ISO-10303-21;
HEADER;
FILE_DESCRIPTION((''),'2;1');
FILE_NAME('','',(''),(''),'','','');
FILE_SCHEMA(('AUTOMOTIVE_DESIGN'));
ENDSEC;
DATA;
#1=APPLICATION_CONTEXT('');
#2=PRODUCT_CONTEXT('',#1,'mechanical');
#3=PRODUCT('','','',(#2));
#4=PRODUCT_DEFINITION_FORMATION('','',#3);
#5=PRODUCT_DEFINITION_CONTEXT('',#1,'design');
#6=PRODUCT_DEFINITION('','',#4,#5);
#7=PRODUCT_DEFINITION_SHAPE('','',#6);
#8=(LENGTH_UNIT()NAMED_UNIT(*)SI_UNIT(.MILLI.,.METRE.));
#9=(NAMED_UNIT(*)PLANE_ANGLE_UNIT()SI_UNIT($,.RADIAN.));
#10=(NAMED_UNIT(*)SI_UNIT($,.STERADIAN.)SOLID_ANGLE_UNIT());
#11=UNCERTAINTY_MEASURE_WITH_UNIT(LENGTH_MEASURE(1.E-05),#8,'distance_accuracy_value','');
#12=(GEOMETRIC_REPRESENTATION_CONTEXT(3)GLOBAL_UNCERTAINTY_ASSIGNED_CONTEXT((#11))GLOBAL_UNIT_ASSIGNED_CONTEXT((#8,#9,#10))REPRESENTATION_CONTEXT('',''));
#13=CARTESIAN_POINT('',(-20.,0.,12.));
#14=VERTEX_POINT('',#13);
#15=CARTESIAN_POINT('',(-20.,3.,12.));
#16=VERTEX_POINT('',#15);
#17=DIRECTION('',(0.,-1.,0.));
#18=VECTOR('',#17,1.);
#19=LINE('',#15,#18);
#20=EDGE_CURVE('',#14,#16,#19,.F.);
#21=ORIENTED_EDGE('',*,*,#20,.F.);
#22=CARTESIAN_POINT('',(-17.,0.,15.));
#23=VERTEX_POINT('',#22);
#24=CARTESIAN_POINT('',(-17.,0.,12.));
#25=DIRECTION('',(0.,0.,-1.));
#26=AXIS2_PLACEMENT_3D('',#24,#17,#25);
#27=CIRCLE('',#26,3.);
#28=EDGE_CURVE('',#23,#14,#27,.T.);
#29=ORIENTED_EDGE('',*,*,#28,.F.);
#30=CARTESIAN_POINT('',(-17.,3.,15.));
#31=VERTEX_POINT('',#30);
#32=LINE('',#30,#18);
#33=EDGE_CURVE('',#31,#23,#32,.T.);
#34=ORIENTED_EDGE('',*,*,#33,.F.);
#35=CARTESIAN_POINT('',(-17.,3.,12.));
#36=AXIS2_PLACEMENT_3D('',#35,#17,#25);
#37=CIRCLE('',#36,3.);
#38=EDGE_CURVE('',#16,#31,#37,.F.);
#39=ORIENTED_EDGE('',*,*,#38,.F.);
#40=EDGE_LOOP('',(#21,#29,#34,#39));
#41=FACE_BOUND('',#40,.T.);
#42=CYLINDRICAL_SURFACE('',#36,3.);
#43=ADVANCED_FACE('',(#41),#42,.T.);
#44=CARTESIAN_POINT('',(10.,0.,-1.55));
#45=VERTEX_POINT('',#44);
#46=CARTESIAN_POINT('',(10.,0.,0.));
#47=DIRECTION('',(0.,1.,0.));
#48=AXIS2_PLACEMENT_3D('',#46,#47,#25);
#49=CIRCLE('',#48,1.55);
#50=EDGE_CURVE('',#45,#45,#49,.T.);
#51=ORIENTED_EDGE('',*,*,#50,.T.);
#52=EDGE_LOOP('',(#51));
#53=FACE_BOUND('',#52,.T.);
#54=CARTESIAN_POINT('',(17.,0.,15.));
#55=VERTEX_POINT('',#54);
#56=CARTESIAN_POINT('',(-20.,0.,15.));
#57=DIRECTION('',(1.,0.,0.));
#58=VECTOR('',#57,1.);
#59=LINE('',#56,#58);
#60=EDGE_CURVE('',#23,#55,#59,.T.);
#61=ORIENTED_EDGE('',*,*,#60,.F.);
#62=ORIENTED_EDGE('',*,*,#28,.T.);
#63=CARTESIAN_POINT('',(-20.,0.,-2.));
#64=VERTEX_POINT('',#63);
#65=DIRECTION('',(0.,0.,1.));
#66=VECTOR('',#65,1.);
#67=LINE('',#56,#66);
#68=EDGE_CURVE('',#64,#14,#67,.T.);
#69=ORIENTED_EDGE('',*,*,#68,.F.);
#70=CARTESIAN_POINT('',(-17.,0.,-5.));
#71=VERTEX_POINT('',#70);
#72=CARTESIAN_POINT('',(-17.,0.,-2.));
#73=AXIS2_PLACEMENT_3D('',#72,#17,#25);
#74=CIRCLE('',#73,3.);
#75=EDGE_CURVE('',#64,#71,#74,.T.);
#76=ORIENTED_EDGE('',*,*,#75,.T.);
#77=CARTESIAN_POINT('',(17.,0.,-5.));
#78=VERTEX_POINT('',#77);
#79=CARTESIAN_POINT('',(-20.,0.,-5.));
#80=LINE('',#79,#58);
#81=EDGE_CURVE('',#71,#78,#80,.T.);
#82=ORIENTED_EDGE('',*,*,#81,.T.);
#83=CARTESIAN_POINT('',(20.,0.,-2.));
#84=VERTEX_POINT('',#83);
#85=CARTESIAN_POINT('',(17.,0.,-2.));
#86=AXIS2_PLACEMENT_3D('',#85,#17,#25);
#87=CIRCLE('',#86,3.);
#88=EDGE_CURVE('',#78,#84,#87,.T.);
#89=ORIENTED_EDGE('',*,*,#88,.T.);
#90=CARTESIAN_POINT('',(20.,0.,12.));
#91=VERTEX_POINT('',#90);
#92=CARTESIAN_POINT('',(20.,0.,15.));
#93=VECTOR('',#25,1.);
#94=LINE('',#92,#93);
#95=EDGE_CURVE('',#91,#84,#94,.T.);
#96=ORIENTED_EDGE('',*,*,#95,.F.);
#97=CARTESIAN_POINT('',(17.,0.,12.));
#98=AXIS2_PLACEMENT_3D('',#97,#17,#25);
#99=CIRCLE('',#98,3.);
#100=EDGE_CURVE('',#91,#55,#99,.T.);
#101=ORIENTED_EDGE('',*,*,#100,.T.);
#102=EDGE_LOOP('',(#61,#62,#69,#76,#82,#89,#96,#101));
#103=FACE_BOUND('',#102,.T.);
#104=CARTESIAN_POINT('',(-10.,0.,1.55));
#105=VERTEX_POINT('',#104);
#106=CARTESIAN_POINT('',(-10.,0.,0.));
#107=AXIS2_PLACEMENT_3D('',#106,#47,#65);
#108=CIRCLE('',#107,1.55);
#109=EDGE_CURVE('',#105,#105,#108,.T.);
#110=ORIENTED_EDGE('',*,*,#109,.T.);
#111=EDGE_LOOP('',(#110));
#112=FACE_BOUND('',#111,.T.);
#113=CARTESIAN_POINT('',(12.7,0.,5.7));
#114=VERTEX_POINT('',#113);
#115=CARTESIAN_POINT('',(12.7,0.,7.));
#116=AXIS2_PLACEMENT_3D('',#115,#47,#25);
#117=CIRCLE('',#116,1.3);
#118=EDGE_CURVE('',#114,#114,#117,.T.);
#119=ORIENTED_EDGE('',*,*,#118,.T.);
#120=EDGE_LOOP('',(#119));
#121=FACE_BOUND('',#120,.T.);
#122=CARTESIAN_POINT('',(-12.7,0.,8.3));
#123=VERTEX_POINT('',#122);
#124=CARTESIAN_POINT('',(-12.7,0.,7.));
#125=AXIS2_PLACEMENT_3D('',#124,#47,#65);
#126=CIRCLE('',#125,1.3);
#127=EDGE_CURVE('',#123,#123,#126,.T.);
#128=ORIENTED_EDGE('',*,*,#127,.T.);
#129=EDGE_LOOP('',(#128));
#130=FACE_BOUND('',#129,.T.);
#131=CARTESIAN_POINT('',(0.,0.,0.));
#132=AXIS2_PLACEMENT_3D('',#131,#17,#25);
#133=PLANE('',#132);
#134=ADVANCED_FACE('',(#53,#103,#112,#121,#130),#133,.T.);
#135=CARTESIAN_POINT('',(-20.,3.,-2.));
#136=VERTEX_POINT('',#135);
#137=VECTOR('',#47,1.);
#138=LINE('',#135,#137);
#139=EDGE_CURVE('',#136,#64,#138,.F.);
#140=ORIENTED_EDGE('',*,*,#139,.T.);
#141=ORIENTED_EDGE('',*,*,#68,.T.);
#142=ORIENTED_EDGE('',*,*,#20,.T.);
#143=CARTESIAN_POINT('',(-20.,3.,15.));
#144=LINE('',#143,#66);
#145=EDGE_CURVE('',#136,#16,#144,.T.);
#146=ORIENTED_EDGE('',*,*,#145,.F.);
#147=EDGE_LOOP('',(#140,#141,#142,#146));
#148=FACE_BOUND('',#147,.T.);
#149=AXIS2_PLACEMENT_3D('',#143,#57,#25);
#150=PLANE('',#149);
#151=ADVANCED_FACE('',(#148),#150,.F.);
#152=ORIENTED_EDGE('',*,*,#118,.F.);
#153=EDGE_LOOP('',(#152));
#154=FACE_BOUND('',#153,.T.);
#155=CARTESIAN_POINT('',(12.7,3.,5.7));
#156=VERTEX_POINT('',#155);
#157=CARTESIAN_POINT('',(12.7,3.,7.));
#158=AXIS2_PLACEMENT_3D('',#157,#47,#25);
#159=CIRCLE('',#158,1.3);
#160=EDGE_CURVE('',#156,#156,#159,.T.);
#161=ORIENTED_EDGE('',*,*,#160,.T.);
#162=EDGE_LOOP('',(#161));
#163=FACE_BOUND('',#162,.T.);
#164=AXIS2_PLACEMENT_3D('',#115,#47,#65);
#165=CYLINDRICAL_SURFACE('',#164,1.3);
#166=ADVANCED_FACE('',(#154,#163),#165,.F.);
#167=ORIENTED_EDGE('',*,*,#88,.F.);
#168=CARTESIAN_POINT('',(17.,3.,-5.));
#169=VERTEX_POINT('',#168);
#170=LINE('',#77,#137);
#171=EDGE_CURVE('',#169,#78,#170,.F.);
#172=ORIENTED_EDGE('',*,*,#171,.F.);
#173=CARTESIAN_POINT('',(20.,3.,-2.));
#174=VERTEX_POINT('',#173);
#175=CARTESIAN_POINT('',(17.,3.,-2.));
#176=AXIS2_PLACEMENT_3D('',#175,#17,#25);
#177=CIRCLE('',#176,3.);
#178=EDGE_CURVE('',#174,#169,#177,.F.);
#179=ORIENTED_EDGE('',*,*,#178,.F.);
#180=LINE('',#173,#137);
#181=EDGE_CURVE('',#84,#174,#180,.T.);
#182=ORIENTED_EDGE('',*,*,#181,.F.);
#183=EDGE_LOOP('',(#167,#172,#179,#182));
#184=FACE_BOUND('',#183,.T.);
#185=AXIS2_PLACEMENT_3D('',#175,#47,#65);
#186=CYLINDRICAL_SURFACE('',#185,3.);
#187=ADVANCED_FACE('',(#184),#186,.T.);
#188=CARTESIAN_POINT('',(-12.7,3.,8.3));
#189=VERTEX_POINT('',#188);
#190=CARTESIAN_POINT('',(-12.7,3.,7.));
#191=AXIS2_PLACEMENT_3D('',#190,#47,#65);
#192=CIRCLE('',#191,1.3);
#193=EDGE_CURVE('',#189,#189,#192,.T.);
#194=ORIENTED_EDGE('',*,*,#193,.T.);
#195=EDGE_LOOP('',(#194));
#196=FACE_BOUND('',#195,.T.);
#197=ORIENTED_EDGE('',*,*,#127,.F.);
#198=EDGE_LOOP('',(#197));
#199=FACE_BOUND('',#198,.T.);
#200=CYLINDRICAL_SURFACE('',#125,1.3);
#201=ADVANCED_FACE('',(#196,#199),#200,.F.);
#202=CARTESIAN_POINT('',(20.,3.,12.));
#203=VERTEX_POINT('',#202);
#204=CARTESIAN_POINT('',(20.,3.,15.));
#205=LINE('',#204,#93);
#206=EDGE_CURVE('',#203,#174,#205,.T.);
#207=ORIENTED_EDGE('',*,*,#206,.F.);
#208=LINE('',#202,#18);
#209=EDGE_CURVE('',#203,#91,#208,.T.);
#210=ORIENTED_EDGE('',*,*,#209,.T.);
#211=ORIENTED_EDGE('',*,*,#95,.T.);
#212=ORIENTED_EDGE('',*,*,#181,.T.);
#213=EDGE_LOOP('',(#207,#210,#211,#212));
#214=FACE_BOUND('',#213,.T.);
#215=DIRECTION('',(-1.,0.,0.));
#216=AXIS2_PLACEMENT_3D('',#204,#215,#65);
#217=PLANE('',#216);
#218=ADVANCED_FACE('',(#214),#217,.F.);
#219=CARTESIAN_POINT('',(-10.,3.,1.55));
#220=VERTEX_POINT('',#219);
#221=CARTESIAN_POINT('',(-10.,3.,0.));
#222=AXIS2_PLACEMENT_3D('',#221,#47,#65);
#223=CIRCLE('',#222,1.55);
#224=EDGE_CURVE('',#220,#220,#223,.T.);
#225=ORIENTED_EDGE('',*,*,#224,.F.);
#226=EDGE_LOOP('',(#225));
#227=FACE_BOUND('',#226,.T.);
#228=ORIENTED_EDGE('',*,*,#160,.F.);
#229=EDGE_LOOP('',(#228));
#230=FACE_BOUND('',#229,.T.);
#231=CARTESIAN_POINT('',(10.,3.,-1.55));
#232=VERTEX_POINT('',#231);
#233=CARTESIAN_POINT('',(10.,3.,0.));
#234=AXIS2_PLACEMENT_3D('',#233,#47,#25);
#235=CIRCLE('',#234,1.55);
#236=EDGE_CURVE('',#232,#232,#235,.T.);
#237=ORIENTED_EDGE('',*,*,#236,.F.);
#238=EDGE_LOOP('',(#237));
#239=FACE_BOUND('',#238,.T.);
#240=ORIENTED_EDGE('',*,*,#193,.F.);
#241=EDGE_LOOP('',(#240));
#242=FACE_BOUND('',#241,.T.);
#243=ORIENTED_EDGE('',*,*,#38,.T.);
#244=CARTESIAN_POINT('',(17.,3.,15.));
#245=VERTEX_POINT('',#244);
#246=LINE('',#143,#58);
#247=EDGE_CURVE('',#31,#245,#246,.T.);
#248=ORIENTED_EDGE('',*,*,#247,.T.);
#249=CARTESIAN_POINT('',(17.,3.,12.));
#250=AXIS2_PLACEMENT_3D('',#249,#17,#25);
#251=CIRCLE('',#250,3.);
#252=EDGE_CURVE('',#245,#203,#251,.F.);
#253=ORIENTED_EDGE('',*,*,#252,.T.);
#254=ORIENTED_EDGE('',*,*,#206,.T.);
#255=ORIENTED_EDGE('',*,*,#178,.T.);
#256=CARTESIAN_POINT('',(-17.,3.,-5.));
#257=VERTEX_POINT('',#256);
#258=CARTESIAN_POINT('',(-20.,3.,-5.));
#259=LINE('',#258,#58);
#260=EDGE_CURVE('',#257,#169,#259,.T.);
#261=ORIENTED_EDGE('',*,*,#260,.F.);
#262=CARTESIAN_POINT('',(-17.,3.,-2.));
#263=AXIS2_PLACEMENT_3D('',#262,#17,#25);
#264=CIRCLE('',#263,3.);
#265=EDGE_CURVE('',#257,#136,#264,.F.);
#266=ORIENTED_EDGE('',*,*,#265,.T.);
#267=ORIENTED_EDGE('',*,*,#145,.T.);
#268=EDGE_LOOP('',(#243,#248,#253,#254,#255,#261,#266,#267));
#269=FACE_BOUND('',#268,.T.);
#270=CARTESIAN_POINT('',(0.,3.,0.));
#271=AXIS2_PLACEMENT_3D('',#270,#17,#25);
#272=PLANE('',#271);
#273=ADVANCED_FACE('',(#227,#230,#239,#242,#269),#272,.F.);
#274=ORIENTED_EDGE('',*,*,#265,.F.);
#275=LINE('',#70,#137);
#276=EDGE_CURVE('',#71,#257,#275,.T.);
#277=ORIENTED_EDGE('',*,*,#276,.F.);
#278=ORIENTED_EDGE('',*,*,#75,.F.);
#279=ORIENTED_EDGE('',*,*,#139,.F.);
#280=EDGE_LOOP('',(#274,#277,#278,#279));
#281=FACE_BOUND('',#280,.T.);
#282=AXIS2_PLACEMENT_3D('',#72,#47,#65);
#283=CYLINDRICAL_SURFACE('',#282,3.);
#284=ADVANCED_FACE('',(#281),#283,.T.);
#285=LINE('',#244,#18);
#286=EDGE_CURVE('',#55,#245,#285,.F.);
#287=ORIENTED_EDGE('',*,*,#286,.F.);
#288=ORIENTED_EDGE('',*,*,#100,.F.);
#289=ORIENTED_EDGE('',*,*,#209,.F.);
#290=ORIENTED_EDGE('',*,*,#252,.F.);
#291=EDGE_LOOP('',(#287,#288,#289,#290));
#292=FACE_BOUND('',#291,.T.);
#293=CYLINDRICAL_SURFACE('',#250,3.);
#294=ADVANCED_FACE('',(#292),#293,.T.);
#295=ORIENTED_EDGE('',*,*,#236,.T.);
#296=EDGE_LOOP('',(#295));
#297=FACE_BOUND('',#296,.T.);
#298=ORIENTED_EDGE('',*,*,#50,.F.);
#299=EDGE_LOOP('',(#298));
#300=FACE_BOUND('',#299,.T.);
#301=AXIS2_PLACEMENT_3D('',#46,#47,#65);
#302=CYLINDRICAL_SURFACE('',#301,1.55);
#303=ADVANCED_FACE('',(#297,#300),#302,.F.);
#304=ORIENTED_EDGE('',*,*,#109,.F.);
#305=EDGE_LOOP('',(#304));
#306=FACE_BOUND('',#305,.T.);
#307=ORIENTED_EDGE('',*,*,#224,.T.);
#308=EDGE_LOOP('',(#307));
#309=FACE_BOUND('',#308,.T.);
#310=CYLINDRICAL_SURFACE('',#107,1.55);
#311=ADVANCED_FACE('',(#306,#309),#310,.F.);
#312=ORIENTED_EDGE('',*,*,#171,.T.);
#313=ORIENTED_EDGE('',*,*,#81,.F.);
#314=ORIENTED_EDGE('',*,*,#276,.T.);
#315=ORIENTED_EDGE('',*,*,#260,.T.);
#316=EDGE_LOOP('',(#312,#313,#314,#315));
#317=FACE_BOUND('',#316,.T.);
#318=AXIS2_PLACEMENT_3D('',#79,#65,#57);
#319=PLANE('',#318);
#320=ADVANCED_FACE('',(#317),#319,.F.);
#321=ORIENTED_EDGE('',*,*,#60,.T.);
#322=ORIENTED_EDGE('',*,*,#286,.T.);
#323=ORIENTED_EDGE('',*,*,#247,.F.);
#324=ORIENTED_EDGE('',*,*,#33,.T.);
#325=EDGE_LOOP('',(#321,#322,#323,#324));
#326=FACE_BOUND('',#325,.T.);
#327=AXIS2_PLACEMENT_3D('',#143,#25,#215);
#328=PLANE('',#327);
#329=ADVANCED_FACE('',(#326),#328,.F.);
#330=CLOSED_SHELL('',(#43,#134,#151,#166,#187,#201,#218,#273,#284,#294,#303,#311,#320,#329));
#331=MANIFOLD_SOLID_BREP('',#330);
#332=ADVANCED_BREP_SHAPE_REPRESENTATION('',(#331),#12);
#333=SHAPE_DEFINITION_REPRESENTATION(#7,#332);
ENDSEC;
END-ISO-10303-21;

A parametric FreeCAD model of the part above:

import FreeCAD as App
import Part
import Sketcher


def edges_at(feature, points):
    """Names of the edges that pass closest to the given points."""
    edges = feature.Shape.Edges
    near = lambda p: min(range(len(edges)), key=lambda i: edges[i].distToShape(Part.Vertex(*p))[0])
    return sorted({f"Edge{near(p) + 1}" for p in points})

doc = App.newDocument("Part")
body = doc.addObject("PartDesign::Body", "Body")

# Sketch on XZ plane
sketch1 = body.newObject("Sketcher::SketchObject", "Sketch")
sketch1.AttachmentSupport = (doc.getObject("XZ_Plane"), [""])
sketch1.MapMode = "FlatFace"
sketch1.addGeometry(Part.LineSegment(App.Vector(-20, -15, 0), App.Vector(-20, 15, 0)), False)
sketch1.addGeometry(Part.LineSegment(App.Vector(-20, 15, 0), App.Vector(20, 15, 0)), False)
sketch1.addGeometry(Part.LineSegment(App.Vector(20, 15, 0), App.Vector(20, -15, 0)), False)
sketch1.addGeometry(Part.LineSegment(App.Vector(20, -15, 0), App.Vector(-20, -15, 0)), False)
sketch1.addConstraint(Sketcher.Constraint("Coincident", 0, 2, 1, 1))
sketch1.addConstraint(Sketcher.Constraint("Coincident", 1, 2, 2, 1))
sketch1.addConstraint(Sketcher.Constraint("Coincident", 2, 2, 3, 1))
sketch1.addConstraint(Sketcher.Constraint("Coincident", 3, 2, 0, 1))
sketch1.addConstraint(Sketcher.Constraint("Vertical", 0))
sketch1.addConstraint(Sketcher.Constraint("Horizontal", 1))
sketch1.addConstraint(Sketcher.Constraint("Vertical", 2))
sketch1.addConstraint(Sketcher.Constraint("Horizontal", 3))
sketch1.addConstraint(Sketcher.Constraint("Symmetric", 0, 2, 2, 2, -1, 1))
sketch1.addConstraint(Sketcher.Constraint("DistanceX", 1, 1, 1, 2, 40.0))
sketch1.addConstraint(Sketcher.Constraint("DistanceY", 0, 1, 0, 2, 30.0))
pad1 = body.newObject("PartDesign::Pad", "Pad")
pad1.Profile = sketch1
pad1.Length = 3
pad1.Reversed = True

# Sketch on XZ plane
sketch2 = body.newObject("Sketcher::SketchObject", "Sketch001")
sketch2.AttachmentSupport = (doc.getObject("XZ_Plane"), [""])
sketch2.MapMode = "FlatFace"
sketch2.AttachmentOffset = App.Placement(App.Vector(0, 0, -3), App.Rotation())
sketch2.addGeometry(Part.Circle(App.Vector(-10, 0, 0), App.Vector(0, 0, 1), 1.6), False)
sketch2.addGeometry(Part.Circle(App.Vector(10, 0, 0), App.Vector(0, 0, 1), 1.6), False)
sketch2.addConstraint(Sketcher.Constraint("Equal", 0, 1))
sketch2.addConstraint(Sketcher.Constraint("Symmetric", 0, 3, 1, 3, -1, 1))
sketch2.addConstraint(Sketcher.Constraint("PointOnObject", 0, 3, -1))
sketch2.addConstraint(Sketcher.Constraint("Diameter", 0, 3.1))
sketch2.addConstraint(Sketcher.Constraint("DistanceX", 0, 3, -1, 1, 10.0))
pocket1 = body.newObject("PartDesign::Pocket", "Pocket")
pocket1.Profile = sketch2
pocket1.Type = "ThroughAll"
pocket1.Reversed = True

# Sketch on XZ plane
sketch3 = body.newObject("Sketcher::SketchObject", "Sketch002")
sketch3.AttachmentSupport = (doc.getObject("XZ_Plane"), [""])
sketch3.MapMode = "FlatFace"
sketch3.AttachmentOffset = App.Placement(App.Vector(0, 0, -3), App.Rotation())
sketch3.addGeometry(Part.LineSegment(App.Vector(-20, -15, 0), App.Vector(-20, -5, 0)), False)
sketch3.addGeometry(Part.LineSegment(App.Vector(-20, -5, 0), App.Vector(20, -5, 0)), False)
sketch3.addGeometry(Part.LineSegment(App.Vector(20, -5, 0), App.Vector(20, -15, 0)), False)
sketch3.addGeometry(Part.LineSegment(App.Vector(20, -15, 0), App.Vector(-20, -15, 0)), False)
sketch3.addConstraint(Sketcher.Constraint("Coincident", 0, 2, 1, 1))
sketch3.addConstraint(Sketcher.Constraint("Coincident", 1, 2, 2, 1))
sketch3.addConstraint(Sketcher.Constraint("Coincident", 2, 2, 3, 1))
sketch3.addConstraint(Sketcher.Constraint("Coincident", 3, 2, 0, 1))
sketch3.addConstraint(Sketcher.Constraint("Vertical", 0))
sketch3.addConstraint(Sketcher.Constraint("Horizontal", 1))
sketch3.addConstraint(Sketcher.Constraint("Vertical", 2))
sketch3.addConstraint(Sketcher.Constraint("Horizontal", 3))
sketch3.addConstraint(Sketcher.Constraint("DistanceX", 1, 1, 1, 2, 40.0))
sketch3.addConstraint(Sketcher.Constraint("DistanceY", 0, 1, 0, 2, 10.0))
sketch3.addConstraint(Sketcher.Constraint("DistanceX", 0, 2, -1, 1, 20.0))
sketch3.addConstraint(Sketcher.Constraint("DistanceY", 0, 2, -1, 1, 5.0))
pocket2 = body.newObject("PartDesign::Pocket", "Pocket001")
pocket2.Profile = sketch3
pocket2.Type = "ThroughAll"
pocket2.Reversed = True
doc.recompute()

fillet = body.newObject("PartDesign::Fillet", "Fillet")
fillet.Base = (pocket2, edges_at(pocket2, [
    (-20, 1.5, -5),
    (20, 1.5, -5),
    (20, 1.5, 15),
    (-20, 1.5, 15),
]))
fillet.Radius = 3

# Sketch on XZ plane
sketch4 = body.newObject("Sketcher::SketchObject", "Sketch003")
sketch4.AttachmentSupport = (doc.getObject("XZ_Plane"), [""])
sketch4.MapMode = "FlatFace"
sketch4.AttachmentOffset = App.Placement(App.Vector(0, 0, -3), App.Rotation())
sketch4.addGeometry(Part.Circle(App.Vector(-12.7, 7, 0), App.Vector(0, 0, 1), 1.3), False)
sketch4.addGeometry(Part.Circle(App.Vector(12.7, 7, 0), App.Vector(0, 0, 1), 1.3), False)
sketch4.addConstraint(Sketcher.Constraint("Equal", 0, 1))
sketch4.addConstraint(Sketcher.Constraint("Symmetric", 0, 3, 1, 3, -2))
sketch4.addConstraint(Sketcher.Constraint("Diameter", 0, 2.6))
sketch4.addConstraint(Sketcher.Constraint("DistanceY", -1, 1, 0, 3, 7.0))
sketch4.addConstraint(Sketcher.Constraint("DistanceX", 0, 3, -1, 1, 12.7))
pocket3 = body.newObject("PartDesign::Pocket", "Pocket002")
pocket3.Profile = sketch4
pocket3.Type = "ThroughAll"
pocket3.Reversed = True

doc.recompute()
